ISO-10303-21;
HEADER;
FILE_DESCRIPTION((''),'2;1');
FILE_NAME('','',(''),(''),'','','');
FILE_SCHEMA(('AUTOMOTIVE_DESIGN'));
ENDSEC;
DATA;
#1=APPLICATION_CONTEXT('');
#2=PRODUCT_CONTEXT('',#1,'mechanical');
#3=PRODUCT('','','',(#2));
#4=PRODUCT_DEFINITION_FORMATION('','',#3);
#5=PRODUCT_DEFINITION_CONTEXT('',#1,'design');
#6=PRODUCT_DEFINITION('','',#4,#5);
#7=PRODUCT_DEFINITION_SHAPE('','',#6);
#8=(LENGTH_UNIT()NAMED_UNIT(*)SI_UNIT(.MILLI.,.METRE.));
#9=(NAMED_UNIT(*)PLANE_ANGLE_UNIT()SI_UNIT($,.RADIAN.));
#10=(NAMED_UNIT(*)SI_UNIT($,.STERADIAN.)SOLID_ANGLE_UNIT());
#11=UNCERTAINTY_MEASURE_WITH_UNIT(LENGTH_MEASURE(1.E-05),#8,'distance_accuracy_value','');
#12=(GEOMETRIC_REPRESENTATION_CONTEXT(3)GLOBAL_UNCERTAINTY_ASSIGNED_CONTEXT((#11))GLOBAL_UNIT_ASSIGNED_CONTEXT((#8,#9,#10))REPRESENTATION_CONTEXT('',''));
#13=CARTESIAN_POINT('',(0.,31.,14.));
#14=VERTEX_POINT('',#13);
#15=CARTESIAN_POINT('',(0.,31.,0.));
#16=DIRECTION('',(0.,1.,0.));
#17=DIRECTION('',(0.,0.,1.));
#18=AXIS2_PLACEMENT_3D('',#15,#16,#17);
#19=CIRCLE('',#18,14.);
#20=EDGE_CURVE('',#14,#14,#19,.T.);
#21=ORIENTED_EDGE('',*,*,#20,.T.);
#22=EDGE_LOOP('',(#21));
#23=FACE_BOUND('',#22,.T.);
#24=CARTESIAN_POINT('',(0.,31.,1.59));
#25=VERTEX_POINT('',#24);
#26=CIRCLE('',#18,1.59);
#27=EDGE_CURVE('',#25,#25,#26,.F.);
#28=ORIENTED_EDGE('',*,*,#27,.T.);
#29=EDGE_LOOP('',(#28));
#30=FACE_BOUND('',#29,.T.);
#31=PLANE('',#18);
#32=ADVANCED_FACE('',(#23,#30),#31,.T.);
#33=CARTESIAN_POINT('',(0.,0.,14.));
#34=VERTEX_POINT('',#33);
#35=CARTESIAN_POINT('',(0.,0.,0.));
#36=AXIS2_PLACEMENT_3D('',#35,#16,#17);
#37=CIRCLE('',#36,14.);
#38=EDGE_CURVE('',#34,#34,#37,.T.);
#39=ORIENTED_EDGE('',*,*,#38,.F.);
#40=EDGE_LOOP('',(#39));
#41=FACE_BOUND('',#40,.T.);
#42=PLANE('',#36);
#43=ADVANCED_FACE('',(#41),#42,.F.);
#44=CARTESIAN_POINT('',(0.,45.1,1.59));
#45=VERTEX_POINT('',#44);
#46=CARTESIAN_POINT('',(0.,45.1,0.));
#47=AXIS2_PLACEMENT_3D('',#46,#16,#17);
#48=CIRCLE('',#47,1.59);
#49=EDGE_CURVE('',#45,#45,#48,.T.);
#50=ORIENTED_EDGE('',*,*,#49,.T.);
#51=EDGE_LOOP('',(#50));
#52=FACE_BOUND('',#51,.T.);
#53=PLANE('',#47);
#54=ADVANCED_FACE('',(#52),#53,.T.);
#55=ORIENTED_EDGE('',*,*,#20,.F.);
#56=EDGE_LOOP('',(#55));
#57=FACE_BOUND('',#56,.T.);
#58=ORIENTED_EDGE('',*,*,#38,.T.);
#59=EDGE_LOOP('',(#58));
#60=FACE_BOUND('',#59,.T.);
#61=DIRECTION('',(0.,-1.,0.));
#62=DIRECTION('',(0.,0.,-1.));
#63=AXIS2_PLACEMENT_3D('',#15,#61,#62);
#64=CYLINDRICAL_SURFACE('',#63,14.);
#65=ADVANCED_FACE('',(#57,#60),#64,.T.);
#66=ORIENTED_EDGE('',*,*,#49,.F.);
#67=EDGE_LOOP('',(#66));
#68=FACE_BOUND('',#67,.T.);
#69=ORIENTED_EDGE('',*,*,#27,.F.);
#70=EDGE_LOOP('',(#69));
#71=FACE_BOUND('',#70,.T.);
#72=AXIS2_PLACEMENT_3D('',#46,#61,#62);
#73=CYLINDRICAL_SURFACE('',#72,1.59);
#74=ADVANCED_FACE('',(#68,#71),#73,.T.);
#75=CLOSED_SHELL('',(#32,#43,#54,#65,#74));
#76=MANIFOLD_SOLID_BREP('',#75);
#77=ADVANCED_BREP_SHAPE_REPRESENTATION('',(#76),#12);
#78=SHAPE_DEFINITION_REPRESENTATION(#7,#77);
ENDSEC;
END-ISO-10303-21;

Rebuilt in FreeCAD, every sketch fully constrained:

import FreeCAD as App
import Part
import Sketcher

V = App.Vector
Q = App.Units.Quantity

doc = App.newDocument("Part")
body = doc.addObject("PartDesign::Body", "Body")

# Sketch on XZ plane
sketch1 = doc.addObject("Sketcher::SketchObject", "Sketch")
body.addObject(sketch1)
sketch1.AttachmentSupport = (doc.XZ_Plane, [""])
sketch1.MapMode = "FlatFace"
sketch1.addGeometry(Part.Circle(V(0, 0, 0), V(0, 0, 1), 14), False)
sketch1.addConstraint([
    Sketcher.Constraint("Coincident", 0, 3, -1, 1),
    Sketcher.Constraint("Diameter", 0, Q("28 mm")),
])
pad1 = doc.addObject("PartDesign::Pad", "Pad")
body.addObject(pad1)
pad1.Profile = sketch1
pad1.Length = 31
pad1.Reversed = True

# Sketch on XZ plane
sketch2 = doc.addObject("Sketcher::SketchObject", "Sketch001")
body.addObject(sketch2)
sketch2.AttachmentSupport = (doc.XZ_Plane, [""])
sketch2.MapMode = "FlatFace"
sketch2.addGeometry(Part.Circle(V(0, 0, 0), V(0, 0, 1), 1.6), False)
sketch2.addConstraint([
    Sketcher.Constraint("Coincident", 0, 3, -1, 1),
    Sketcher.Constraint("Diameter", 0, Q("3.18 mm")),
])
pad2 = doc.addObject("PartDesign::Pad", "Pad001")
body.addObject(pad2)
pad2.Profile = sketch2
pad2.Length = 45.1
pad2.Reversed = True

doc.recompute()
